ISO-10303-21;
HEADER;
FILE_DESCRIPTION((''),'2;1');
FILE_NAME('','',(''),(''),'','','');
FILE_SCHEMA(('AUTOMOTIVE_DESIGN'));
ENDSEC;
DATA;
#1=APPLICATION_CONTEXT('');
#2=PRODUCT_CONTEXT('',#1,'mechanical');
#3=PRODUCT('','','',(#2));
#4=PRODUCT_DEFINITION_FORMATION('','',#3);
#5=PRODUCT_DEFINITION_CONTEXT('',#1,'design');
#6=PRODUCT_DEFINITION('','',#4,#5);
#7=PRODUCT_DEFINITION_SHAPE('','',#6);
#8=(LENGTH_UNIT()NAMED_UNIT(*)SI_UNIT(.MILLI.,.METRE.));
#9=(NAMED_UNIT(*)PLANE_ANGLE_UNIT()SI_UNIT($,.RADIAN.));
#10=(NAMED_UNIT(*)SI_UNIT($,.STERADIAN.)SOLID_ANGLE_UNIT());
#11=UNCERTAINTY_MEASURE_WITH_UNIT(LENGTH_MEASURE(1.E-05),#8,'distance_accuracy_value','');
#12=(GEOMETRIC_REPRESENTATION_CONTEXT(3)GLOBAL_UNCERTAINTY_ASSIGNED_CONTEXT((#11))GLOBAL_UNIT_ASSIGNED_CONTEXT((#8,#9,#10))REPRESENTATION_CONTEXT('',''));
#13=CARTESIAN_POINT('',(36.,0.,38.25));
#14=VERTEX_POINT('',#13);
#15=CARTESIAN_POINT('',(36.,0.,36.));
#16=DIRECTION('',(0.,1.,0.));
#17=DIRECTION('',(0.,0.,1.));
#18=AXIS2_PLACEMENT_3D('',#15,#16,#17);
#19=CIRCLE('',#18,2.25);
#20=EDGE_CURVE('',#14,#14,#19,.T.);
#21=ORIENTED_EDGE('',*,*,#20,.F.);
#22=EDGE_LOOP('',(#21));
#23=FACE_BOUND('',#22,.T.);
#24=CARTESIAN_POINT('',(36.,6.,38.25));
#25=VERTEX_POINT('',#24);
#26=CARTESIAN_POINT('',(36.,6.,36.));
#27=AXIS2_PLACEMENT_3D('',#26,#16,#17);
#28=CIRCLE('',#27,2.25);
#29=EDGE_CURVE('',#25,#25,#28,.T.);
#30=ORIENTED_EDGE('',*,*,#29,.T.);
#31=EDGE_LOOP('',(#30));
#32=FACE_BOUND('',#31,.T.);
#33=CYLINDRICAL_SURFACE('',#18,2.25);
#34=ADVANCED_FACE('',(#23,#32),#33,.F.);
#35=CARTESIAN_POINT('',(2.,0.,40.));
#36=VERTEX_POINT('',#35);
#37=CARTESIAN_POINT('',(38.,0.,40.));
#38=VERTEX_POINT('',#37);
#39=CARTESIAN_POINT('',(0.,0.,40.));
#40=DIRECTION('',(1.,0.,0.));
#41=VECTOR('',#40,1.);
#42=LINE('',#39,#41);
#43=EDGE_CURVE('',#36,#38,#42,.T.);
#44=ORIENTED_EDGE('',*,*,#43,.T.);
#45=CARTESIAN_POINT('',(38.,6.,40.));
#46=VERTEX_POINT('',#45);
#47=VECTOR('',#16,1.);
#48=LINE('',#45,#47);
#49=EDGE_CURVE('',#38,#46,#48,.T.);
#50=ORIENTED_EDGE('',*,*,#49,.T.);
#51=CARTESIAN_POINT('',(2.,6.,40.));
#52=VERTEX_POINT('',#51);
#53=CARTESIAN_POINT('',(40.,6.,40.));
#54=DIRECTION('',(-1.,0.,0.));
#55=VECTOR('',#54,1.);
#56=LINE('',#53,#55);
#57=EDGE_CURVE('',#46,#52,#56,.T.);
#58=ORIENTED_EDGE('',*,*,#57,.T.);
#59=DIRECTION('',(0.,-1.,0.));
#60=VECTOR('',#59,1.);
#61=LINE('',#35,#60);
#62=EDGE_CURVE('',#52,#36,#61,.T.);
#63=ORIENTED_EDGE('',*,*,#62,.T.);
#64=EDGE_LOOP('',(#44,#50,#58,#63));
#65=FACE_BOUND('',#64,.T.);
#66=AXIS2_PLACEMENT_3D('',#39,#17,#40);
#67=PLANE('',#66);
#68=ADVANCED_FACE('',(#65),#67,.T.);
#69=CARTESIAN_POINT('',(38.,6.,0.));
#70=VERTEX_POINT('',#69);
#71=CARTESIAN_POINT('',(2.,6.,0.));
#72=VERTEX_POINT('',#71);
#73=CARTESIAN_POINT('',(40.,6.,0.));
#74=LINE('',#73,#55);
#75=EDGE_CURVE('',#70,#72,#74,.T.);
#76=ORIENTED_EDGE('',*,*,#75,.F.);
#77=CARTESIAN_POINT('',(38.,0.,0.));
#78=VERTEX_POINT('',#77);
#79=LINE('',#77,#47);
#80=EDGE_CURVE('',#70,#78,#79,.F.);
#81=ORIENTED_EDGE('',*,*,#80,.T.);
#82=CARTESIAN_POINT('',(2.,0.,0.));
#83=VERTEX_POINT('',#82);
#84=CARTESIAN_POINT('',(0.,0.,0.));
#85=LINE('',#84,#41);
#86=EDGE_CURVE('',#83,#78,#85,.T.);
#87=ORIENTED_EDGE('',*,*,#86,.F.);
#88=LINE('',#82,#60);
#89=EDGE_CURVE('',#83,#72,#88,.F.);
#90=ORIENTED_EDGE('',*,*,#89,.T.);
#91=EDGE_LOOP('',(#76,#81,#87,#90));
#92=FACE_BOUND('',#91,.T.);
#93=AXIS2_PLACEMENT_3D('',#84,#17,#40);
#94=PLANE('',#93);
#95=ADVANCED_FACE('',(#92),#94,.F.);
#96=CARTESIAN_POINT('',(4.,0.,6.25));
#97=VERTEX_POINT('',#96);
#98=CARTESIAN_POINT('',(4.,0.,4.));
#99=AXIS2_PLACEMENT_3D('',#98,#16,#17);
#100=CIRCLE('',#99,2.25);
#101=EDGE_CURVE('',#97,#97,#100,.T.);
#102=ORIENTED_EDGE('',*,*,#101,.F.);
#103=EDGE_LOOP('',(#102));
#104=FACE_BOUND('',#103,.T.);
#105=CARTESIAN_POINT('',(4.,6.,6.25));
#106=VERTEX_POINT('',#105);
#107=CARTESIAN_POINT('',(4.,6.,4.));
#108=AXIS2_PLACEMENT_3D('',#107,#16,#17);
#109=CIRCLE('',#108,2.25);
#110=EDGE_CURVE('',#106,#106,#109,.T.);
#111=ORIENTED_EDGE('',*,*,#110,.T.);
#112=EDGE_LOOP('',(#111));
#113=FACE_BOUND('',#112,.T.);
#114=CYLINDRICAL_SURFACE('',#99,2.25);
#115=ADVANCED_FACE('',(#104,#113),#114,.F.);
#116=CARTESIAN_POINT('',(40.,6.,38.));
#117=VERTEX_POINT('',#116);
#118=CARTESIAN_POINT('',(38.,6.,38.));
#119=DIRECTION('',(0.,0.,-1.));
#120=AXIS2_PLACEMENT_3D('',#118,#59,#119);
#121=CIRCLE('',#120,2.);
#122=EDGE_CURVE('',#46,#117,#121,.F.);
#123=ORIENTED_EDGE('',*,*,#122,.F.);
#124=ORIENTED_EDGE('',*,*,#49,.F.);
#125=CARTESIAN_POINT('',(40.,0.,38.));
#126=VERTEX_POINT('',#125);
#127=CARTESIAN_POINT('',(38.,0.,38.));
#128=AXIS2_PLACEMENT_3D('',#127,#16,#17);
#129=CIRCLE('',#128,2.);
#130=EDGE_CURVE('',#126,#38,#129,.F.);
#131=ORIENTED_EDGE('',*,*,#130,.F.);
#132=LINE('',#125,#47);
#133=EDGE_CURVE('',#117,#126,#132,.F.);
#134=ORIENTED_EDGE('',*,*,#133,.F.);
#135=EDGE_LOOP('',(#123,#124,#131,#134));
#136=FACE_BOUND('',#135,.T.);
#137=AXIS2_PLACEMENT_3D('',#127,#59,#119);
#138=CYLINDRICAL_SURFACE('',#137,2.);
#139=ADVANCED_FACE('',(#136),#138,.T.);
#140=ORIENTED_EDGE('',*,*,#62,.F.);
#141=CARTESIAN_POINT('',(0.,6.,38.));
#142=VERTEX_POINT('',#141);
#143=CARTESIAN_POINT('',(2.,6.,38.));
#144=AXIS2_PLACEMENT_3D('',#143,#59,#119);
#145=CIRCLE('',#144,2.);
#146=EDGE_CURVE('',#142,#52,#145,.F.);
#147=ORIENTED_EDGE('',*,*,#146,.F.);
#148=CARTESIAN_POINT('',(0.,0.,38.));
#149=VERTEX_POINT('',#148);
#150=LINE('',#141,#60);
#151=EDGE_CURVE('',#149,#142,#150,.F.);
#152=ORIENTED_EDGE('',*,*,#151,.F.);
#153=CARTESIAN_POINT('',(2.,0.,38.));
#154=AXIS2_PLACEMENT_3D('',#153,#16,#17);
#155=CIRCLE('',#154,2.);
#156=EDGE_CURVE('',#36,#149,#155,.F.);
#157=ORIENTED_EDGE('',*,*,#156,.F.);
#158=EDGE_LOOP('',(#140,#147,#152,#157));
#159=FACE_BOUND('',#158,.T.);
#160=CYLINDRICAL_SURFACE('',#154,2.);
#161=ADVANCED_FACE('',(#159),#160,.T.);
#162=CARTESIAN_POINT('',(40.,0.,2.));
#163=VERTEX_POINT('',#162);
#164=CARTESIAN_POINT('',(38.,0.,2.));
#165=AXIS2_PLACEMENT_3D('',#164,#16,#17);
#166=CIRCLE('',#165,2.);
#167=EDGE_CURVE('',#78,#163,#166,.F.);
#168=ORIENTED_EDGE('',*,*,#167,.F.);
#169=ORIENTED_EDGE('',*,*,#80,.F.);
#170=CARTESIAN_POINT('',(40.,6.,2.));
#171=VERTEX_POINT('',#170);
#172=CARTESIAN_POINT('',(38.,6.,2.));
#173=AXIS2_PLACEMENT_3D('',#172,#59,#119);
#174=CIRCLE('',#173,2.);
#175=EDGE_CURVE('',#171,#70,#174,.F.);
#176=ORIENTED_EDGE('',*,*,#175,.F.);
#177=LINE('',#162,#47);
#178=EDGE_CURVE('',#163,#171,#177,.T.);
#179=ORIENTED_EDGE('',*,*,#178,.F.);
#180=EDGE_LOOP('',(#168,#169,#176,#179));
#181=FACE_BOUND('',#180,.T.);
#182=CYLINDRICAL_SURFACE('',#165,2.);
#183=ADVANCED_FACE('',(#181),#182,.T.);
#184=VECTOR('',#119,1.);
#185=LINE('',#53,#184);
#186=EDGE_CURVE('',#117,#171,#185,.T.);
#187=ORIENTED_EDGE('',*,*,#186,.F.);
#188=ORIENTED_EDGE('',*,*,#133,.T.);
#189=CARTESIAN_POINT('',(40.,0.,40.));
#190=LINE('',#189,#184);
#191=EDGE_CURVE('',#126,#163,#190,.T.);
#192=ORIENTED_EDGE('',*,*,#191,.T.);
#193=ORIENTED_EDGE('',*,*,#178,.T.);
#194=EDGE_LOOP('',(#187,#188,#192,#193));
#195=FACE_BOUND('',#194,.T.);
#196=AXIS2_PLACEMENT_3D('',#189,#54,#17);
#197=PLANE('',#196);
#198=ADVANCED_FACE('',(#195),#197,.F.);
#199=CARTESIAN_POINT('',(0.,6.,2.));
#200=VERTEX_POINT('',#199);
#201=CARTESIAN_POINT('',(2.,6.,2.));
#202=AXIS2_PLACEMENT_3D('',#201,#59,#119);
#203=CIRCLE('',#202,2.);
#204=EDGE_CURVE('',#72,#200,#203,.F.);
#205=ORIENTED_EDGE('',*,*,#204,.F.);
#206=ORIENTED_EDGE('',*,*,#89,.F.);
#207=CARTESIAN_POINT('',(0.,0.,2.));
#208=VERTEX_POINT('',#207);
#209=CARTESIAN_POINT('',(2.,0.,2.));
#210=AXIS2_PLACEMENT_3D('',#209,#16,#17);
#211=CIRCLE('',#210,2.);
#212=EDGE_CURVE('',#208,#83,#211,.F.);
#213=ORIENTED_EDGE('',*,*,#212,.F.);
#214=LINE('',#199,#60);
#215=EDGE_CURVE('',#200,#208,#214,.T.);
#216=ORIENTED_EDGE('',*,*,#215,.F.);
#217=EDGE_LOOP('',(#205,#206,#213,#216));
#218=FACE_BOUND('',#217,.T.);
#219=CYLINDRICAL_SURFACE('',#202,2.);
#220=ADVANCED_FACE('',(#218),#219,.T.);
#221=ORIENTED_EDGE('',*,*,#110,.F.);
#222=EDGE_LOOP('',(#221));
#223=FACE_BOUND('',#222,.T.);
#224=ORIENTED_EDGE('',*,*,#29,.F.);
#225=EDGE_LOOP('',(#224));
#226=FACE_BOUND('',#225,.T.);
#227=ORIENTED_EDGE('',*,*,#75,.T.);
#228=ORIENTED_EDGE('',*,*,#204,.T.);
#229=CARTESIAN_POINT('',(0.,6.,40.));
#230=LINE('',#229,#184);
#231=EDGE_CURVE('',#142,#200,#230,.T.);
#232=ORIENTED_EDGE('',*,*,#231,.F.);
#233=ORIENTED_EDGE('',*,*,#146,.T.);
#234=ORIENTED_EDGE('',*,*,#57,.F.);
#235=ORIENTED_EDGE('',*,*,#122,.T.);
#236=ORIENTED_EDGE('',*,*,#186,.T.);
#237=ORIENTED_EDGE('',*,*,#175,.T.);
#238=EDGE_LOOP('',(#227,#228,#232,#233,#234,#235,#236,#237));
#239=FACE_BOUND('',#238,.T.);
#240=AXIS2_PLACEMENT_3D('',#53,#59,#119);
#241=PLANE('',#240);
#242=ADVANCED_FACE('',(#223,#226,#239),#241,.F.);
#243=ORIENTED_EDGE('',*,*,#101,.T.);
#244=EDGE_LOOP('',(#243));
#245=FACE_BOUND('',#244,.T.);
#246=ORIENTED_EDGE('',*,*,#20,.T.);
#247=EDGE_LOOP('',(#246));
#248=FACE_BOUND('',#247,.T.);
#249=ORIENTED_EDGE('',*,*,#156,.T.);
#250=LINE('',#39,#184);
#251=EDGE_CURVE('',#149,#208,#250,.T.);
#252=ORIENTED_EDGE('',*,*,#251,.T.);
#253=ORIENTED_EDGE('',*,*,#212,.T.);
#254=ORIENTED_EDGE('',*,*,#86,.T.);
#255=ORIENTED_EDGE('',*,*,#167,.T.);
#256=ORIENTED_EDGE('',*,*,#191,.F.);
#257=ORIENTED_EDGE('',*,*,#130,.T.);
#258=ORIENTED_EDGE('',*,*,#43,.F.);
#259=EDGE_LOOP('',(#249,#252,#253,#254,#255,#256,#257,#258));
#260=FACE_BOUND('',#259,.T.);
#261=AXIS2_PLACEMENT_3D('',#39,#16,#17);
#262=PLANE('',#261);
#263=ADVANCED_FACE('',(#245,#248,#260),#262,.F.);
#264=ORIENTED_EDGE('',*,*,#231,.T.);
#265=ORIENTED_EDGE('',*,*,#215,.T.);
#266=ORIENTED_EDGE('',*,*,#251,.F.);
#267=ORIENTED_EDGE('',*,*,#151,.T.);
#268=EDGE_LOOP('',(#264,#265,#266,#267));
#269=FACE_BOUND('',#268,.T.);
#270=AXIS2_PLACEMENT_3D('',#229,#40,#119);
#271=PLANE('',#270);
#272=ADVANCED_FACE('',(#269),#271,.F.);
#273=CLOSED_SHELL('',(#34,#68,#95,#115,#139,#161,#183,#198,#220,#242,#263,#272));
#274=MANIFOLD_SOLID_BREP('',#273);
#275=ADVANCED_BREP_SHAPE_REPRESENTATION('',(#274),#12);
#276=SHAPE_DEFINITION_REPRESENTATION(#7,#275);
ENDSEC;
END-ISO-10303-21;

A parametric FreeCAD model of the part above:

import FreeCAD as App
import Part
import Sketcher


def edges_at(feature, points):
    """Names of the edges that pass closest to the given points."""
    edges = feature.Shape.Edges
    near = lambda p: min(range(len(edges)), key=lambda i: edges[i].distToShape(Part.Vertex(*p))[0])
    return sorted({f"Edge{near(p) + 1}" for p in points})


def add_polygon(sketch, points):
    """Adds a closed chain of lines whose ends are joined by coincident constraints."""
    first, n = sketch.GeometryCount, len(points)
    for a, b in zip(points, points[1:] + points[:1]):
        sketch.addGeometry(Part.LineSegment(App.Vector(*a, 0), App.Vector(*b, 0)), False)
    for i in range(n):
        sketch.addConstraint(Sketcher.Constraint("Coincident", first + i, 2, first + (i + 1) % n, 1))

doc = App.newDocument("Part")
body = doc.addObject("PartDesign::Body", "Body")

# Sketch on XY plane
sketch1 = body.newObject("Sketcher::SketchObject", "Sketch")
sketch1.AttachmentSupport = (doc.getObject("XY_Plane"), [""])
sketch1.MapMode = "FlatFace"
add_polygon(sketch1, [(0, 6), (0, 0), (40, 0), (40, 6)])  # lines 0-3
sketch1.addConstraint([
    Sketcher.Constraint("Vertical", 0),
    Sketcher.Constraint("Horizontal", 1),
    Sketcher.Constraint("Vertical", 2),
    Sketcher.Constraint("Horizontal", 3),
    Sketcher.Constraint("Coincident", 0, 2, -1, 1),
    Sketcher.Constraint("DistanceX", 1, 1, 1, 2, 40.0),
    Sketcher.Constraint("DistanceY", 0, 2, 0, 1, 6.0),
])
pad1 = body.newObject("PartDesign::Pad", "Pad")
pad1.Profile = sketch1
pad1.Length = 40
doc.recompute()

fillet = body.newObject("PartDesign::Fillet", "Fillet")
fillet.Base = (pad1, edges_at(pad1, [
    (40, 3, 40),
    (0, 3, 40),
    (40, 3, 0),
    (0, 3, 0),
]))
fillet.Radius = 2

# Sketch on XZ plane
sketch2 = body.newObject("Sketcher::SketchObject", "Sketch001")
sketch2.AttachmentSupport = (doc.getObject("XZ_Plane"), [""])
sketch2.MapMode = "FlatFace"
sketch2.AttachmentOffset = App.Placement(App.Vector(0, 0, -6), App.Rotation())
sketch2.addGeometry(Part.Circle(App.Vector(4, 4, 0), App.Vector(0, 0, 1), 2.25), False)
sketch2.addConstraint([
    Sketcher.Constraint("Diameter", 0, 4.5),
    Sketcher.Constraint("DistanceX", -1, 1, 0, 3, 4.0),
    Sketcher.Constraint("DistanceY", -1, 1, 0, 3, 4.0),
])
pocket1 = body.newObject("PartDesign::Pocket", "Pocket")
pocket1.Profile = sketch2
pocket1.Type = "ThroughAll"
pocket1.Reversed = True

# Sketch on XZ plane
sketch3 = body.newObject("Sketcher::SketchObject", "Sketch002")
sketch3.AttachmentSupport = (doc.getObject("XZ_Plane"), [""])
sketch3.MapMode = "FlatFace"
sketch3.AttachmentOffset = App.Placement(App.Vector(0, 0, -6), App.Rotation())
sketch3.addGeometry(Part.Circle(App.Vector(36, 36, 0), App.Vector(0, 0, 1), 2.25), False)
sketch3.addConstraint([
    Sketcher.Constraint("Diameter", 0, 4.5),
    Sketcher.Constraint("DistanceX", -1, 1, 0, 3, 36.0),
    Sketcher.Constraint("DistanceY", -1, 1, 0, 3, 36.0),
])
pocket2 = body.newObject("PartDesign::Pocket", "Pocket001")
pocket2.Profile = sketch3
pocket2.Type = "ThroughAll"
pocket2.Reversed = True

doc.recompute()
